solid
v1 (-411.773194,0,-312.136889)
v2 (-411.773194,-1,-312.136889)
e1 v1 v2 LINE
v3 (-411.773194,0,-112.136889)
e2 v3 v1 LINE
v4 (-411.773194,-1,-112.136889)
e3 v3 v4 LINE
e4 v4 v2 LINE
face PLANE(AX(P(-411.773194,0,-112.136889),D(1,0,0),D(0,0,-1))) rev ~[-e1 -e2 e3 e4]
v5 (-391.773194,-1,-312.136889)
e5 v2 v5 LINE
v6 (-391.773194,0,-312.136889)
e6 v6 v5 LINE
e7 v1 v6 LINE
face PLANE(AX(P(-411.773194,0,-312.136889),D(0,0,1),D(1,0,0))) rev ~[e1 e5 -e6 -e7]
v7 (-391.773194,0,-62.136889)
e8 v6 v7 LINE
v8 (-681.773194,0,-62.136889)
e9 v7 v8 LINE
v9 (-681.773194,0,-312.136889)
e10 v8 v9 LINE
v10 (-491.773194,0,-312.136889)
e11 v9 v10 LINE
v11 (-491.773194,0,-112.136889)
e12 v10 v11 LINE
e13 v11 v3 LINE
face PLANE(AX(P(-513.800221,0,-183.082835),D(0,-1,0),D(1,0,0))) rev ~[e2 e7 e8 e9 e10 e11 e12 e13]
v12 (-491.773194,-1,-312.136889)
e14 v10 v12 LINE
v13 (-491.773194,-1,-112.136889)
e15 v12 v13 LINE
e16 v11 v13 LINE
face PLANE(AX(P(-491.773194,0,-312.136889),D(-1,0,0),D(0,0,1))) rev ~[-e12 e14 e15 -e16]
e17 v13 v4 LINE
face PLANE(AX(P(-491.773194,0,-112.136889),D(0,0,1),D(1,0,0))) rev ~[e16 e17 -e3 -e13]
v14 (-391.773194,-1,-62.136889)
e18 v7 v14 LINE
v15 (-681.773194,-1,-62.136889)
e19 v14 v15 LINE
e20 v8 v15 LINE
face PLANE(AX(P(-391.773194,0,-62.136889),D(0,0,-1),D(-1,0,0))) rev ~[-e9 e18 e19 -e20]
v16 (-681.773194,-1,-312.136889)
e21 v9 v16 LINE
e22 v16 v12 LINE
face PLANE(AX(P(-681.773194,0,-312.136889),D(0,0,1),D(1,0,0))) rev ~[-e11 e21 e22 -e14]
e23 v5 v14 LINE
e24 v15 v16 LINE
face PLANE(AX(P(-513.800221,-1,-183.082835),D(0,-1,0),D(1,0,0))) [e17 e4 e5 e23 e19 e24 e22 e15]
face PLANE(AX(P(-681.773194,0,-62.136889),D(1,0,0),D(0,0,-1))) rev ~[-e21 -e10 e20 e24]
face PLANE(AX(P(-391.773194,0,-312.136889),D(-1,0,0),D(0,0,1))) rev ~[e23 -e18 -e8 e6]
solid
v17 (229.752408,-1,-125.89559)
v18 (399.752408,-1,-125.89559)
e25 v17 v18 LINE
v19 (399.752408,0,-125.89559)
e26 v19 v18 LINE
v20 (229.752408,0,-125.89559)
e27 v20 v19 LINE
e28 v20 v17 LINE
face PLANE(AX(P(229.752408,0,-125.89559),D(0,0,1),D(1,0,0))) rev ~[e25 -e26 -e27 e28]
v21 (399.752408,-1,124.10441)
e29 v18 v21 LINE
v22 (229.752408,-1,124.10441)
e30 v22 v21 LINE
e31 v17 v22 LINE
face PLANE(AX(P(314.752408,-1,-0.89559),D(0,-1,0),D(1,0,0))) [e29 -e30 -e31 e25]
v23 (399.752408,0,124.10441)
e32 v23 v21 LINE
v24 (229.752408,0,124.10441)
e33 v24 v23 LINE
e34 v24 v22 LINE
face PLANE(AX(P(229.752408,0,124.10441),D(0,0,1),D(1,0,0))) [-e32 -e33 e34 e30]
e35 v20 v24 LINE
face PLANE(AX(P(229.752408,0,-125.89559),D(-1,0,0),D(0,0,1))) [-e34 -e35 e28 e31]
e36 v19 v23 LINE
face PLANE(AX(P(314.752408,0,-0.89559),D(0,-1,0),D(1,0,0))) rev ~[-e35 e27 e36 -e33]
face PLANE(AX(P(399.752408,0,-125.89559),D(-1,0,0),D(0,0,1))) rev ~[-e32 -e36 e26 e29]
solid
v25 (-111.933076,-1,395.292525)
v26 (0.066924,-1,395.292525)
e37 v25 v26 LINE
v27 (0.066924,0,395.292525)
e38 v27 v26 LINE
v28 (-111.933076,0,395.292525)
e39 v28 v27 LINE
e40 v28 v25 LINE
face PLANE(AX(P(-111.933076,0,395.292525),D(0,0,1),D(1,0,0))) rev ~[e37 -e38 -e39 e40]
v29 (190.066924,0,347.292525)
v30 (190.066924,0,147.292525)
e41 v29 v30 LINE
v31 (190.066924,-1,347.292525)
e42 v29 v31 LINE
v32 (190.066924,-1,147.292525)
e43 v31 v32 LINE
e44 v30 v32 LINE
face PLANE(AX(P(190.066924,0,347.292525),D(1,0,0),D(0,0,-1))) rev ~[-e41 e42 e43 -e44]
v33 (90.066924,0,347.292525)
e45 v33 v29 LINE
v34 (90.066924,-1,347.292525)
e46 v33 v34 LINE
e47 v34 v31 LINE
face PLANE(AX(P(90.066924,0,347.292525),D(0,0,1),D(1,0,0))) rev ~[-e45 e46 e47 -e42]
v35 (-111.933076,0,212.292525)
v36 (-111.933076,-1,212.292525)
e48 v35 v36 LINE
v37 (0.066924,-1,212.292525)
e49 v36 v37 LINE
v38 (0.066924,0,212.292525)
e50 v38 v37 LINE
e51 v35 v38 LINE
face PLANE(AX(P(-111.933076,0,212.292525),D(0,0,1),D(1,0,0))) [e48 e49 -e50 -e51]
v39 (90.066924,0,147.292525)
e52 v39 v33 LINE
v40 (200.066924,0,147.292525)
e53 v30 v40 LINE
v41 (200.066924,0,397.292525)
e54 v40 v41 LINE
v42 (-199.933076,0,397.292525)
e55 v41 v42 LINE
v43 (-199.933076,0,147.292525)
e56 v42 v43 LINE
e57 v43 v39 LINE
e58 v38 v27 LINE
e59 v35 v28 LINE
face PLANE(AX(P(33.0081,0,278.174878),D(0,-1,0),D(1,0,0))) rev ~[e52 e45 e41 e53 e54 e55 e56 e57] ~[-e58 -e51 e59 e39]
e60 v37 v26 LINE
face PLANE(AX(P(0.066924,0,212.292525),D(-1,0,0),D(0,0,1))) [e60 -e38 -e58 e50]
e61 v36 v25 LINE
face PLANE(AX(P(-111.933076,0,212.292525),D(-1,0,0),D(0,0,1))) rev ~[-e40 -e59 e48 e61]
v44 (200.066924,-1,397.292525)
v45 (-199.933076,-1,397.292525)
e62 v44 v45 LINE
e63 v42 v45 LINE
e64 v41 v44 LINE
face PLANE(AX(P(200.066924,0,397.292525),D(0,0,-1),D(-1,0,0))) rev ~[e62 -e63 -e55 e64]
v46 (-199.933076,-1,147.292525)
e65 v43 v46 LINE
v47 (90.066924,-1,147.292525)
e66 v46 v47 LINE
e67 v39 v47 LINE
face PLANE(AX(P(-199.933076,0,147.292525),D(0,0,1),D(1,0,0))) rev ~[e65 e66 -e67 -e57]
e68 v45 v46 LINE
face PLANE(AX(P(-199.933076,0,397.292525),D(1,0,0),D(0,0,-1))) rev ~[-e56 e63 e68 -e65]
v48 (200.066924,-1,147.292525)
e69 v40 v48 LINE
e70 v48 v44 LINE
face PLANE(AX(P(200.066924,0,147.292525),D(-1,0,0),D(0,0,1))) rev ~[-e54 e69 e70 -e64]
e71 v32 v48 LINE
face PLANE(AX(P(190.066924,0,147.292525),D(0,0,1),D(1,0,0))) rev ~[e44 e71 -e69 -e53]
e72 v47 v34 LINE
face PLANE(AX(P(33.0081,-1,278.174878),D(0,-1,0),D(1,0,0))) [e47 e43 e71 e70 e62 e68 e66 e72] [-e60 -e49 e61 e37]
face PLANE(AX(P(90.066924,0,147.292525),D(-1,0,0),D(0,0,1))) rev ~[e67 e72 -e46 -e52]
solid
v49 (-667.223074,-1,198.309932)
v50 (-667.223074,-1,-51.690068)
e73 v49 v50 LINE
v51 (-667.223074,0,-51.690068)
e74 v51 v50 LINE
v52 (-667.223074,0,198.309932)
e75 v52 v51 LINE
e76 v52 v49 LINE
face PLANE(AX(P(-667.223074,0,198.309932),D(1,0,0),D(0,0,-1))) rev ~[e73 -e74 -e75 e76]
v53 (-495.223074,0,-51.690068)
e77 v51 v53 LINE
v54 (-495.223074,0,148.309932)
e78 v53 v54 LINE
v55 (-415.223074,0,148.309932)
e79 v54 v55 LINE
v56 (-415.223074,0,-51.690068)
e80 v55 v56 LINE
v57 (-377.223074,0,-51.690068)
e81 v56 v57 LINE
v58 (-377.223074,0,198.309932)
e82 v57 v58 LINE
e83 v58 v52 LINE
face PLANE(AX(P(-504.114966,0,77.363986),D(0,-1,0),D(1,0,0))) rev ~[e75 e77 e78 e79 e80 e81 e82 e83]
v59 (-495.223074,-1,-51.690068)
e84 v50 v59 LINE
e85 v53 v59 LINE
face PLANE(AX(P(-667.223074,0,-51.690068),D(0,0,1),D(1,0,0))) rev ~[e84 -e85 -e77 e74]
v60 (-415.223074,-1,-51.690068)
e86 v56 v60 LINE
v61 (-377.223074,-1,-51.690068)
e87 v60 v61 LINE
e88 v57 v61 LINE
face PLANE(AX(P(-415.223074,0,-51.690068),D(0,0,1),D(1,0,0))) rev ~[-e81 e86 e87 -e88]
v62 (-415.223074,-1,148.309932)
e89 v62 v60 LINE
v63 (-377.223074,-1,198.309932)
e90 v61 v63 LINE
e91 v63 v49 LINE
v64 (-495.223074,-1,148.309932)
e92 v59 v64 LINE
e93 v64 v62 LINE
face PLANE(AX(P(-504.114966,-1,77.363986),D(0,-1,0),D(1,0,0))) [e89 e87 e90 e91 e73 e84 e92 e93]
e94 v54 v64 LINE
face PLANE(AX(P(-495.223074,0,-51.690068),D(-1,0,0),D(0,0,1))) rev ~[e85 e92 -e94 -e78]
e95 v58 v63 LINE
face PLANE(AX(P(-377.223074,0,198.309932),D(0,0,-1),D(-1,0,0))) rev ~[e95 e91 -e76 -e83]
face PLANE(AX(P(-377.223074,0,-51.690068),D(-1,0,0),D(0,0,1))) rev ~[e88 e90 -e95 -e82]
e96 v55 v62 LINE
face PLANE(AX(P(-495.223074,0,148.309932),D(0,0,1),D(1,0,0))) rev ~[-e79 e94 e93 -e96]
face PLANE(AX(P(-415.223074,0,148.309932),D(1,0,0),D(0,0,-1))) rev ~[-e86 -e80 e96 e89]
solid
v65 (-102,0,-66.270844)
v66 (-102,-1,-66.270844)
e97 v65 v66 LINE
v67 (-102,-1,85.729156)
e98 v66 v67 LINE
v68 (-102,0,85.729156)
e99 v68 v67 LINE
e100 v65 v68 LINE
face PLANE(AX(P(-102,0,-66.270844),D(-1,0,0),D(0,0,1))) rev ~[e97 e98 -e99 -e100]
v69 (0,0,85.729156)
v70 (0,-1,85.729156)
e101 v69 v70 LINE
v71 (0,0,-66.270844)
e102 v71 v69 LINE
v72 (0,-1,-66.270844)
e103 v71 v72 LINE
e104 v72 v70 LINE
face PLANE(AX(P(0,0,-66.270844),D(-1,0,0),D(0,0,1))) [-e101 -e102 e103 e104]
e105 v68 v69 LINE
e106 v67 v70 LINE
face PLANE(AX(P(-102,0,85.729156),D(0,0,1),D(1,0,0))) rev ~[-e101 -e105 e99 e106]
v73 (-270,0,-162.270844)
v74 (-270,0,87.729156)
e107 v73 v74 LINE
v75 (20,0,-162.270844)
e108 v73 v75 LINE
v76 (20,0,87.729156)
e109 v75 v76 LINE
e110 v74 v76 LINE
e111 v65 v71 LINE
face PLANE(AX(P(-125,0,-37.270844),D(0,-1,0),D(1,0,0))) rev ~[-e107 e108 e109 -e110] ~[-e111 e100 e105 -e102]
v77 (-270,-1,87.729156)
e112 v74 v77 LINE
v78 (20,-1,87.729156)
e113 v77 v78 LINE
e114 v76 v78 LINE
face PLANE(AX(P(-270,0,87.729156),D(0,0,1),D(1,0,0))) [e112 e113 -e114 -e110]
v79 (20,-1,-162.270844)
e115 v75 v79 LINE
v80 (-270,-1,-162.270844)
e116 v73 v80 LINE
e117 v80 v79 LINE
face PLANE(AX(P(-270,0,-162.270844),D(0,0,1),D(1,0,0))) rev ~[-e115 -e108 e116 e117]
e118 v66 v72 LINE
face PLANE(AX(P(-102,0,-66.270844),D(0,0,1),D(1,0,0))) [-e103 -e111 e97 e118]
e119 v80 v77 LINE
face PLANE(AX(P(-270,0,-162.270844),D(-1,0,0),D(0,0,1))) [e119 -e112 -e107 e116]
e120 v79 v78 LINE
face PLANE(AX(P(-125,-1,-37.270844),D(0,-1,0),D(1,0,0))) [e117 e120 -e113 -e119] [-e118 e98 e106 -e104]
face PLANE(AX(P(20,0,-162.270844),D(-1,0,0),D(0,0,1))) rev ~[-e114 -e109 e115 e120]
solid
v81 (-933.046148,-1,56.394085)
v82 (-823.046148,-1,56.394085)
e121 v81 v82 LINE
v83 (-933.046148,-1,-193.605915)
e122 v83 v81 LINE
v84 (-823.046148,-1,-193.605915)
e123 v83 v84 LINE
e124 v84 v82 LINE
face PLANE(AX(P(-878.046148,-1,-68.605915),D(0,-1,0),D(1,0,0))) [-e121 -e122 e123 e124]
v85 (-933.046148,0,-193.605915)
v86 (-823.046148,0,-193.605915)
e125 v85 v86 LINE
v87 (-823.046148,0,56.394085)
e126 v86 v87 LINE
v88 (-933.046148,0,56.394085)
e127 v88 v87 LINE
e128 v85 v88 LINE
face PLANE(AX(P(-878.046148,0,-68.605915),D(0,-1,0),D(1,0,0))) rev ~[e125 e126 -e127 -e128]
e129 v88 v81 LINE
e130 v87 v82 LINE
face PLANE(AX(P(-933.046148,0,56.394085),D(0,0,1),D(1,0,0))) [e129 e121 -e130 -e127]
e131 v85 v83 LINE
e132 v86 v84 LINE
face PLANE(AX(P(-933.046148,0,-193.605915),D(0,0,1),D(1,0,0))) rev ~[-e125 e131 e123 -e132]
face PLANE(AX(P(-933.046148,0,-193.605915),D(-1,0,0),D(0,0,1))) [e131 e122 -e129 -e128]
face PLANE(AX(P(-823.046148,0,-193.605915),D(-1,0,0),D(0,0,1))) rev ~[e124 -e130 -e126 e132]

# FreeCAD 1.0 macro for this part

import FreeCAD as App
import Part
import Sketcher
from FreeCAD import Vector


def add_polygon(sketch, points):
    """Adds a closed chain of lines whose ends are joined by coincident constraints."""
    first, n = sketch.GeometryCount, len(points)
    for a, b in zip(points, points[1:] + points[:1]):
        sketch.addGeometry(Part.LineSegment(App.Vector(*a, 0), App.Vector(*b, 0)), False)
    for i in range(n):
        sketch.addConstraint(Sketcher.Constraint("Coincident", first + i, 2, first + (i + 1) % n, 1))

doc = App.newDocument("Part")
params = doc.addObject("Spreadsheet::Sheet", "Params")
for row, (alias, value) in enumerate([
    ("sketch1_width", "290 mm"),
    ("sketch1_width2", "172 mm"),
    ("sketch1_width3", "80 mm"),
    ("sketch1_width4", "190 mm"),
    ("sketch1_width5", "400 mm"),
    ("pad1_length", "1 mm"),
    ("sketch2_width", "110 mm"),
    ("sketch2_height", "250 mm"),
    ("pad2_length", "1 mm"),
], start=1):
    params.set(f"A{row}", alias)
    params.set(f"B{row}", "=" + value)
    params.setAlias(f"B{row}", alias)

body = doc.addObject("PartDesign::Body", "Body")
body.AllowCompound = True

# Sketch on XZ plane
sketch1 = body.newObject("Sketcher::SketchObject", "Sketch")
sketch1.AttachmentSupport = (doc.getObject("XZ_Plane"), [""])
sketch1.MapMode = "FlatFace"
add_polygon(sketch1, [(-377.223074, 198.309932), (-667.223074, 198.309932), (-667.223074, -51.690068), (-495.223074, -51.690068), (-495.223074, 148.309932), (-415.223074, 148.309932), (-415.223074, -51.690068), (-377.223074, -51.690068)])  # lines 0-7
add_polygon(sketch1, [(-391.773194, -62.136889), (-681.773194, -62.136889), (-681.773194, -312.136889), (-491.773194, -312.136889), (-491.773194, -112.136889), (-411.773194, -112.136889), (-411.773194, -312.136889), (-391.773194, -312.136889)])  # lines 8-15
add_polygon(sketch1, [(200.066924, 397.292525), (-199.933076, 397.292525), (-199.933076, 147.292525), (90.066924, 147.292525), (90.066924, 347.292525), (190.066924, 347.292525), (190.066924, 147.292525), (200.066924, 147.292525)])  # lines 16-23
add_polygon(sketch1, [(0.066924, 212.292525), (-111.933076, 212.292525), (-111.933076, 395.292525), (0.066924, 395.292525)])  # lines 24-27
add_polygon(sketch1, [(-270, 87.729156), (-270, -162.270844), (20, -162.270844), (20, 87.729156)])  # lines 28-31
add_polygon(sketch1, [(0, -66.270844), (-102, -66.270844), (-102, 85.729156), (0, 85.729156)])  # lines 32-35
add_polygon(sketch1, [(229.752408, 124.10441), (229.752408, -125.89559), (399.752408, -125.89559), (399.752408, 124.10441)])  # lines 36-39
sketch1.addConstraint(Sketcher.Constraint("Horizontal", 0))
sketch1.addConstraint(Sketcher.Constraint("Vertical", 1))
sketch1.addConstraint(Sketcher.Constraint("Horizontal", 2))
sketch1.addConstraint(Sketcher.Constraint("Vertical", 3))
sketch1.addConstraint(Sketcher.Constraint("Horizontal", 4))
sketch1.addConstraint(Sketcher.Constraint("Vertical", 5))
sketch1.addConstraint(Sketcher.Constraint("Horizontal", 6))
sketch1.addConstraint(Sketcher.Constraint("Vertical", 7))
sketch1.addConstraint(Sketcher.Constraint("Horizontal", 8))
sketch1.addConstraint(Sketcher.Constraint("Vertical", 9))
sketch1.addConstraint(Sketcher.Constraint("Horizontal", 10))
sketch1.addConstraint(Sketcher.Constraint("Vertical", 11))
sketch1.addConstraint(Sketcher.Constraint("Horizontal", 12))
sketch1.addConstraint(Sketcher.Constraint("Vertical", 13))
sketch1.addConstraint(Sketcher.Constraint("Horizontal", 14))
sketch1.addConstraint(Sketcher.Constraint("Vertical", 15))
sketch1.addConstraint(Sketcher.Constraint("Horizontal", 16))
sketch1.addConstraint(Sketcher.Constraint("Vertical", 17))
sketch1.addConstraint(Sketcher.Constraint("Horizontal", 18))
sketch1.addConstraint(Sketcher.Constraint("Vertical", 19))
sketch1.addConstraint(Sketcher.Constraint("Horizontal", 20))
sketch1.addConstraint(Sketcher.Constraint("Vertical", 21))
sketch1.addConstraint(Sketcher.Constraint("Horizontal", 22))
sketch1.addConstraint(Sketcher.Constraint("Vertical", 23))
sketch1.addConstraint(Sketcher.Constraint("Horizontal", 24))
sketch1.addConstraint(Sketcher.Constraint("Vertical", 25))
sketch1.addConstraint(Sketcher.Constraint("Horizontal", 26))
sketch1.addConstraint(Sketcher.Constraint("Vertical", 27))
sketch1.addConstraint(Sketcher.Constraint("Vertical", 28))
sketch1.addConstraint(Sketcher.Constraint("Horizontal", 29))
sketch1.addConstraint(Sketcher.Constraint("Vertical", 30))
sketch1.addConstraint(Sketcher.Constraint("Horizontal", 31))
sketch1.addConstraint(Sketcher.Constraint("Horizontal", 32))
sketch1.addConstraint(Sketcher.Constraint("Vertical", 33))
sketch1.addConstraint(Sketcher.Constraint("Horizontal", 34))
sketch1.addConstraint(Sketcher.Constraint("Vertical", 35))
sketch1.addConstraint(Sketcher.Constraint("Vertical", 36))
sketch1.addConstraint(Sketcher.Constraint("Horizontal", 37))
sketch1.addConstraint(Sketcher.Constraint("Vertical", 38))
sketch1.addConstraint(Sketcher.Constraint("Horizontal", 39))
sketch1.addConstraint(Sketcher.Constraint("PointOnObject", 34, 2, -2))
sketch1.addConstraint(Sketcher.Constraint("Horizontal", 2, 2, 5, 2))
sketch1.addConstraint(Sketcher.Constraint("Horizontal", 10, 2, 13, 2))
sketch1.addConstraint(Sketcher.Constraint("Horizontal", 18, 2, 21, 2))
sketch1.addConstraint(Sketcher.Constraint("Equal", 0, 8))
sketch1.addConstraint(Sketcher.Constraint("Equal", 4, 12))
sketch1.addConstraint(Sketcher.Constraint("Equal", 8, 18))
sketch1.addConstraint(Sketcher.Constraint("Equal", 18, 29))
sketch1.addConstraint(Sketcher.Constraint("Equal", 7, 9))
sketch1.addConstraint(Sketcher.Constraint("Equal", 5, 11))
sketch1.addConstraint(Sketcher.Constraint("Equal", 15, 17))
sketch1.addConstraint(Sketcher.Constraint("Equal", 13, 19))
sketch1.addConstraint(Sketcher.Constraint("Equal", 23, 28))
sketch1.addConstraint(Sketcher.Constraint("Equal", 30, 36))
sketch1.addConstraint(Sketcher.Constraint("DistanceX", 0, 2, 0, 1, 290.0))
sketch1.addConstraint(Sketcher.Constraint("DistanceX", 2, 1, 2, 2, 172.0))
sketch1.addConstraint(Sketcher.Constraint("DistanceX", 4, 1, 4, 2, 80.0))
sketch1.addConstraint(Sketcher.Constraint("DistanceX", 10, 1, 10, 2, 190.0))
sketch1.addConstraint(Sketcher.Constraint("DistanceX", 16, 2, 16, 1, 400.0))
sketch1.addConstraint(Sketcher.Constraint("DistanceX", 20, 1, 20, 2, 100.0))
sketch1.addConstraint(Sketcher.Constraint("DistanceX", 24, 2, 24, 1, 112.0))
sketch1.addConstraint(Sketcher.Constraint("DistanceX", 32, 2, 32, 1, 102.0))
sketch1.addConstraint(Sketcher.Constraint("DistanceX", 37, 1, 37, 2, 170.0))
sketch1.addConstraint(Sketcher.Constraint("DistanceY", 1, 2, 1, 1, 250.0))
sketch1.addConstraint(Sketcher.Constraint("DistanceY", 3, 1, 3, 2, 200.0))
sketch1.addConstraint(Sketcher.Constraint("DistanceY", 25, 1, 25, 2, 183.0))
sketch1.addConstraint(Sketcher.Constraint("DistanceY", 33, 1, 33, 2, 152.0))
sketch1.addConstraint(Sketcher.Constraint("DistanceX", 28, 2, -1, 1, 270.0))
sketch1.addConstraint(Sketcher.Constraint("DistanceX", 17, 2, 24, 2, 88.0))
sketch1.addConstraint(Sketcher.Constraint("DistanceY", 17, 2, 24, 2, 65.0))
sketch1.addConstraint(Sketcher.Constraint("DistanceY", 29, 2, 32, 2, 96.0))
sketch1.addConstraint(Sketcher.Constraint("DistanceX", 7, 2, 16, 2, 177.289998))
sketch1.addConstraint(Sketcher.Constraint("DistanceY", -1, 1, 0, 2, 198.309932))
sketch1.addConstraint(Sketcher.Constraint("DistanceY", 8, 2, -1, 1, 62.136889))
sketch1.addConstraint(Sketcher.Constraint("DistanceX", -1, 1, 36, 2, 229.752408))
sketch1.addConstraint(Sketcher.Constraint("DistanceY", 36, 2, -1, 1, 125.89559))
sketch1.addConstraint(Sketcher.Constraint("DistanceX", 8, 2, 1, 2, 14.55012))
sketch1.addConstraint(Sketcher.Constraint("DistanceY", 29, 2, 18, 2, 309.563369))
sketch1.addConstraint(Sketcher.Constraint("DistanceX", 0, 2, -1, 1, 667.223074))
sketch1.addConstraint(Sketcher.Constraint("DistanceY", -1, 1, 16, 2, 397.292525))
sketch1.setExpression("Constraints[94]", "Params.sketch1_width")
sketch1.setExpression("Constraints[95]", "Params.sketch1_width2")
sketch1.setExpression("Constraints[96]", "Params.sketch1_width3")
sketch1.setExpression("Constraints[97]", "Params.sketch1_width4")
sketch1.setExpression("Constraints[98]", "Params.sketch1_width5")
pad1 = body.newObject("PartDesign::Pad", "Pad")
pad1.Profile = sketch1
pad1.setExpression("Length", "Params.pad1_length")
body2 = doc.addObject("PartDesign::Body", "Body001")

# Sketch on XZ plane
sketch2 = body2.newObject("Sketcher::SketchObject", "Sketch001")
sketch2.AttachmentSupport = (doc.getObject("XZ_Plane001"), [""])
sketch2.MapMode = "FlatFace"
add_polygon(sketch2, [(-933.046148, 56.394085), (-933.046148, -193.605915), (-823.046148, -193.605915), (-823.046148, 56.394085)])  # lines 0-3
sketch2.addConstraint(Sketcher.Constraint("Vertical", 0))
sketch2.addConstraint(Sketcher.Constraint("Horizontal", 1))
sketch2.addConstraint(Sketcher.Constraint("Vertical", 2))
sketch2.addConstraint(Sketcher.Constraint("Horizontal", 3))
sketch2.addConstraint(Sketcher.Constraint("DistanceX", 1, 1, 1, 2, 110.0))
sketch2.addConstraint(Sketcher.Constraint("DistanceY", 0, 2, 0, 1, 250.0))
sketch2.addConstraint(Sketcher.Constraint("DistanceX", 0, 2, -1, 1, 933.046148))
sketch2.addConstraint(Sketcher.Constraint("DistanceY", 0, 2, -1, 1, 193.605915))
sketch2.setExpression("Constraints[8]", "Params.sketch2_width")
sketch2.setExpression("Constraints[9]", "Params.sketch2_height")
pad2 = body2.newObject("PartDesign::Pad", "Pad001")
pad2.Profile = sketch2
pad2.setExpression("Length", "Params.pad2_length")

doc.recompute()
